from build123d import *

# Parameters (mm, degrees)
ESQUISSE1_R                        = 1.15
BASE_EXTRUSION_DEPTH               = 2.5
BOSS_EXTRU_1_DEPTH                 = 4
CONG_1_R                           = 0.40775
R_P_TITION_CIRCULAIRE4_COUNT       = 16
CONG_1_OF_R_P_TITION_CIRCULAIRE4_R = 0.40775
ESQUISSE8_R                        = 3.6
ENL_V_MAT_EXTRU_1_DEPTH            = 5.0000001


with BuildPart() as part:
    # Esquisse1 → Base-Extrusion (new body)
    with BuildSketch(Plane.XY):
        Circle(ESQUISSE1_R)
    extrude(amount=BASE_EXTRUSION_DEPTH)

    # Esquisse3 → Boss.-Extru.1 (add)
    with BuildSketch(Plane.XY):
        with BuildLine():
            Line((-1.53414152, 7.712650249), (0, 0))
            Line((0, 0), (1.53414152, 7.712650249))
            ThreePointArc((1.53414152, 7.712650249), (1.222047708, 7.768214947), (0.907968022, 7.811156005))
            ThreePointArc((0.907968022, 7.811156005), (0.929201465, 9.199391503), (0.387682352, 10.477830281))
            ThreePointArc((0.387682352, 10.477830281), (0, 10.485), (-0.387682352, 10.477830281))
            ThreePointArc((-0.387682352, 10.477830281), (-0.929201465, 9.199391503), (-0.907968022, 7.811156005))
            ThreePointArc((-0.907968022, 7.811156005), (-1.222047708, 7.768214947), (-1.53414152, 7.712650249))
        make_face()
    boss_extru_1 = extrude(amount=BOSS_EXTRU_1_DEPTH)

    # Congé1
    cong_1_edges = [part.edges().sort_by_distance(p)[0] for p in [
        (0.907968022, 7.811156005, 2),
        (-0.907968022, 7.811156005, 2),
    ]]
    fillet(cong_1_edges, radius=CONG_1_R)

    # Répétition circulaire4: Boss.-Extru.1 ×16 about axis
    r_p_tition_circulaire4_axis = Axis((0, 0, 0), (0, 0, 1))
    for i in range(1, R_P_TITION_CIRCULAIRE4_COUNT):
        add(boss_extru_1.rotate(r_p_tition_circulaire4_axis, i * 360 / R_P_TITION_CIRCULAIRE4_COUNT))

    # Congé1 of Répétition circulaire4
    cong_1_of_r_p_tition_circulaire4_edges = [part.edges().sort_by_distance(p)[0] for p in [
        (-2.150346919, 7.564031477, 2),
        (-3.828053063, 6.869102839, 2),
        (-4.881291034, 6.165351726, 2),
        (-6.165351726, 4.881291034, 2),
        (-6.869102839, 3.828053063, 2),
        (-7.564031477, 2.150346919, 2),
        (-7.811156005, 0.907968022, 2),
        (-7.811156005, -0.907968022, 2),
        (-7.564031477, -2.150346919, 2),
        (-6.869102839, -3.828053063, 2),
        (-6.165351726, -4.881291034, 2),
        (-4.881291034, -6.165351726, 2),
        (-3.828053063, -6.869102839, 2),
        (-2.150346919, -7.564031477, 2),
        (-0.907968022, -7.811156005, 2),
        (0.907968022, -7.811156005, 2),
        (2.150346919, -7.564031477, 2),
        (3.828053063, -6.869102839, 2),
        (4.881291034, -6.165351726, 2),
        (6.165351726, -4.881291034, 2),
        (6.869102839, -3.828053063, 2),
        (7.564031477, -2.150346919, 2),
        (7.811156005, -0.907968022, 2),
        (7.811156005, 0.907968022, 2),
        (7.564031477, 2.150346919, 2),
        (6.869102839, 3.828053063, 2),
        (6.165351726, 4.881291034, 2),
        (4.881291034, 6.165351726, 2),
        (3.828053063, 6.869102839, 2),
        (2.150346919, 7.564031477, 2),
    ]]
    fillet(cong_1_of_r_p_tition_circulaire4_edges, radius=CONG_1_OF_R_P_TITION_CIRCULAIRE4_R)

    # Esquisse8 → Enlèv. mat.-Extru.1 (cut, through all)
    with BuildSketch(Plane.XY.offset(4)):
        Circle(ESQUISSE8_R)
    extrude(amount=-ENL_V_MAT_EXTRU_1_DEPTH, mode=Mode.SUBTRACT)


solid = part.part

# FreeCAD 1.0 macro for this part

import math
import FreeCAD as App
import Part
import Sketcher

V = App.Vector
Q = App.Units.Quantity


def edges_at(feature, points):
    """Names of the edges that pass closest to the given points."""
    edges = feature.Shape.Edges
    near = lambda p: min(range(len(edges)), key=lambda i: edges[i].distToShape(Part.Vertex(*p))[0])
    return sorted({f"Edge{near(p) + 1}" for p in points})

doc = App.newDocument("Part")
body = doc.addObject("PartDesign::Body", "Body")

# Sketch on XY plane
sketch1 = body.newObject("Sketcher::SketchObject", "Sketch")
sketch1.AttachmentSupport = (doc.getObject("XY_Plane"), [""])
sketch1.MapMode = "FlatFace"
sketch1.addGeometry(Part.Circle(V(0, 0, 0), V(0, 0, 1), 1.1), False)
sketch1.addConstraint([
    Sketcher.Constraint("Coincident", 0, 3, -1, 1),
    Sketcher.Constraint("Diameter", 0, 2.3),
])
pad1 = body.newObject("PartDesign::Pad", "Pad")
pad1.Profile = sketch1
pad1.Length = 2.5

# Sketch on XY plane
sketch2 = body.newObject("Sketcher::SketchObject", "Sketch001")
sketch2.AttachmentSupport = (doc.getObject("XY_Plane"), [""])
sketch2.MapMode = "FlatFace"
sketch2.addGeometry([
    Part.LineSegment(V(-1.5, 7.7, 0), V(0, 0, 0)),  # 0
    Part.LineSegment(V(0, 0, 0), V(1.5, 7.7, 0)),  # 1
    Part.ArcOfCircle(Part.Circle(V(0, 0, 0), V(0, 0, 1), 7.9), math.radians(78.75), math.radians(83.37)),  # 2
    Part.ArcOfCircle(Part.Circle(V(-2.4, 8.6, 0), V(0, 0, 1), 3.4), math.radians(-13), math.radians(35)),  # 3
    Part.ArcOfCircle(Part.Circle(V(0, 0, 0), V(0, 0, 1), 10.5), math.radians(87.88), math.radians(92.12)),  # 4
    Part.ArcOfCircle(Part.Circle(V(2.4, 8.6, 0), V(0, 0, 1), 3.4), math.radians(145), math.radians(193)),  # 5
    Part.ArcOfCircle(Part.Circle(V(0, 0, 0), V(0, 0, 1), 7.9), math.radians(96.63), math.radians(101.25)),  # 6
], False)
sketch2.addConstraint([
    Sketcher.Constraint("Coincident", 0, 2, 1, 1),
    Sketcher.Constraint("Coincident", 1, 2, 2, 1),
    Sketcher.Constraint("Coincident", 2, 2, 3, 1),
    Sketcher.Constraint("Coincident", 3, 2, 4, 1),
    Sketcher.Constraint("Coincident", 4, 2, 5, 1),
    Sketcher.Constraint("Coincident", 5, 2, 6, 1),
    Sketcher.Constraint("Coincident", 6, 2, 0, 1),
    Sketcher.Constraint("Coincident", 2, 3, -1, 1),
    Sketcher.Constraint("Coincident", 4, 3, -1, 1),
    Sketcher.Constraint("Coincident", 6, 3, -1, 1),
    Sketcher.Constraint("Coincident", 0, 2, -1, 1),
    Sketcher.Constraint("Equal", 3, 5),
    Sketcher.Constraint("Equal", 2, 6),
    Sketcher.Constraint("Symmetric", 3, 3, 5, 3, -2),
    Sketcher.Constraint("Horizontal", 1, 2, 6, 2),
    Sketcher.Constraint("Radius", 3, 3.362001),
    Sketcher.Constraint("Radius", 4, 10.485),
    Sketcher.Constraint("Angle", 0, Q("-78.75 deg")),
    Sketcher.Constraint("Radius", 2, 7.86375),
    Sketcher.Constraint("DistanceX", 3, 3, -1, 1, 2.37058),
    Sketcher.Constraint("DistanceX", -1, 1, 2, 2, 0.907968),
])
pad2 = body.newObject("PartDesign::Pad", "Pad001")
pad2.Profile = sketch2
pad2.Length = 4
doc.recompute()

fillet = body.newObject("PartDesign::Fillet", "Fillet")
fillet.Base = (pad2, edges_at(pad2, [(0.908, 7.811, 2), (-0.908, 7.811, 2)]))
fillet.Radius = 0.40775
doc.recompute()

polarpattern = body.newObject("PartDesign::PolarPattern", "PolarPattern")
polarpattern.Originals = [pad2]
polarpattern.Axis = (doc.getObject("Z_Axis"), [""])
polarpattern.Angle = 360
polarpattern.Occurrences = 16
body.Tip = polarpattern
doc.recompute()

fillet2 = body.newObject("PartDesign::Fillet", "Fillet001")
fillet2.Base = (polarpattern, edges_at(polarpattern, [
    (-2.15, 7.564, 2),
    (-3.828, 6.869, 2),
    (-4.881, 6.165, 2),
    (-6.165, 4.881, 2),
    (-6.869, 3.828, 2),
    (-7.564, 2.15, 2),
    (-7.811, 0.908, 2),
    (-7.811, -0.908, 2),
    (-7.564, -2.15, 2),
    (-6.869, -3.828, 2),
    (-6.165, -4.881, 2),
    (-4.881, -6.165, 2),
    (-3.828, -6.869, 2),
    (-2.15, -7.564, 2),
    (-0.908, -7.811, 2),
    (0.908, -7.811, 2),
    (2.15, -7.564, 2),
    (3.828, -6.869, 2),
    (4.881, -6.165, 2),
    (6.165, -4.881, 2),
    (6.869, -3.828, 2),
    (7.564, -2.15, 2),
    (7.811, -0.908, 2),
    (7.811, 0.908, 2),
    (7.564, 2.15, 2),
    (6.869, 3.828, 2),
    (6.165, 4.881, 2),
    (4.881, 6.165, 2),
    (3.828, 6.869, 2),
    (2.15, 7.564, 2),
]))
fillet2.Radius = 0.40775

# Sketch on XY plane
sketch3 = body.newObject("Sketcher::SketchObject", "Sketch002")
sketch3.AttachmentSupport = (doc.getObject("XY_Plane"), [""])
sketch3.MapMode = "FlatFace"
sketch3.AttachmentOffset = App.Placement(V(0, 0, 4), App.Rotation())
sketch3.addGeometry(Part.Circle(V(0, 0, 0), V(0, 0, 1), 3.6), False)
sketch3.addConstraint([
    Sketcher.Constraint("Coincident", 0, 3, -1, 1),
    Sketcher.Constraint("Diameter", 0, 7.2),
])
pocket1 = body.newObject("PartDesign::Pocket", "Pocket")
pocket1.Profile = sketch3
pocket1.Type = "ThroughAll"

doc.recompute()
